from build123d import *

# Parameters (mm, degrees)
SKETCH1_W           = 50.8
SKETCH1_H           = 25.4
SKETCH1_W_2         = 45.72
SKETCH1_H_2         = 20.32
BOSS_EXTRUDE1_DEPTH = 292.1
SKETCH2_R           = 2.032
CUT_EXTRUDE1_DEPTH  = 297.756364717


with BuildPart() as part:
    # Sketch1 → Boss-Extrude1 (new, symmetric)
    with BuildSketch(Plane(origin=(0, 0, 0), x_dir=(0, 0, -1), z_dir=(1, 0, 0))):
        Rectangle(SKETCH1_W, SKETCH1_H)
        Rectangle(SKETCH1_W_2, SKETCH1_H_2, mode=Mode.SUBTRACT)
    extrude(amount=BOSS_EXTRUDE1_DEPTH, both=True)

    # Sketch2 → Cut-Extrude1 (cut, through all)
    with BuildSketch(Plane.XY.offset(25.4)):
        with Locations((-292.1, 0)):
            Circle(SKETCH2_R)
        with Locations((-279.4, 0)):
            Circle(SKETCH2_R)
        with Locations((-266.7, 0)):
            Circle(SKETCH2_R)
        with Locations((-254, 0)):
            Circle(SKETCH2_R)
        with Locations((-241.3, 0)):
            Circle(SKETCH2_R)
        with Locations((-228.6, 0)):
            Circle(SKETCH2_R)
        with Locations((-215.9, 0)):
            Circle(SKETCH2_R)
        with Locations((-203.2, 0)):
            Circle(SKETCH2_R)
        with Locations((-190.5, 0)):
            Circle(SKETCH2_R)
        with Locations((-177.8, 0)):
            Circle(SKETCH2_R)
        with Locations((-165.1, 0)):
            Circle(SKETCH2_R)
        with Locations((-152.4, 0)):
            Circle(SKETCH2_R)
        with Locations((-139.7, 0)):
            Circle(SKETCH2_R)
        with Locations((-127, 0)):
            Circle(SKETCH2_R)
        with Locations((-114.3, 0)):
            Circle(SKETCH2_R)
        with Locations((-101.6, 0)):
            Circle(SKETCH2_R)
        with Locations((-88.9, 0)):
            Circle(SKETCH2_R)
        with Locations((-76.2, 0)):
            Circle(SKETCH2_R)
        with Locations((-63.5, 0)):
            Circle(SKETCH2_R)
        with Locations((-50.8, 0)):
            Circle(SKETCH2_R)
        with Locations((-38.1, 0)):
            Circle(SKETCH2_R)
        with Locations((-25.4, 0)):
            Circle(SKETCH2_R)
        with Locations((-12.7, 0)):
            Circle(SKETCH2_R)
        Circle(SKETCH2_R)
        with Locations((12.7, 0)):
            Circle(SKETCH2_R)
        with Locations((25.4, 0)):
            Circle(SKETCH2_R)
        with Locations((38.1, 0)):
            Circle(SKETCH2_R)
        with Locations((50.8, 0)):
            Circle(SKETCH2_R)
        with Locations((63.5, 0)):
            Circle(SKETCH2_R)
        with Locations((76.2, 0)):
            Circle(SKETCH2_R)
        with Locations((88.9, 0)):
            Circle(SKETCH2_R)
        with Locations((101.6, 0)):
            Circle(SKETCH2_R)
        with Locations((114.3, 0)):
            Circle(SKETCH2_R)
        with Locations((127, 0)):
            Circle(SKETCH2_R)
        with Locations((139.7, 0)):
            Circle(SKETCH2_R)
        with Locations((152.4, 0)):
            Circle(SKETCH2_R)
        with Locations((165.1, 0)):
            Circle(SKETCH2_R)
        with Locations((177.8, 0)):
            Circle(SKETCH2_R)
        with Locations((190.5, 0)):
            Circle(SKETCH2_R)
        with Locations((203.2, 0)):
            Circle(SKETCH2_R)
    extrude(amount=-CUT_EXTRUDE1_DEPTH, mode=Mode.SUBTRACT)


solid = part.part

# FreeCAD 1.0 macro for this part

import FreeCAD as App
import Part
import Sketcher
Q = App.Units.Quantity


def add_polygon(sketch, points):
    """Adds a closed chain of lines whose ends are joined by coincident constraints."""
    first, n = sketch.GeometryCount, len(points)
    for a, b in zip(points, points[1:] + points[:1]):
        sketch.addGeometry(Part.LineSegment(App.Vector(*a, 0), App.Vector(*b, 0)), False)
    for i in range(n):
        sketch.addConstraint(Sketcher.Constraint("Coincident", first + i, 2, first + (i + 1) % n, 1))

doc = App.newDocument("Part")
body = doc.addObject("PartDesign::Body", "Body")

# Sketch on YZ plane
sketch1 = body.newObject("Sketcher::SketchObject", "Sketch")
sketch1.AttachmentSupport = (doc.getObject("YZ_Plane"), [""])
sketch1.MapMode = "FlatFace"
add_polygon(sketch1, [(12.7, 25.4), (-12.7, 25.4), (-12.7, -25.4), (12.7, -25.4)])  # lines 0-3
add_polygon(sketch1, [(-10.16, -22.86), (-10.16, 22.86), (10.16, 22.86), (10.16, -22.86)])  # lines 4-7
sketch1.addConstraint(Sketcher.Constraint("Horizontal", 0))
sketch1.addConstraint(Sketcher.Constraint("Vertical", 1))
sketch1.addConstraint(Sketcher.Constraint("Horizontal", 2))
sketch1.addConstraint(Sketcher.Constraint("Vertical", 3))
sketch1.addConstraint(Sketcher.Constraint("Vertical", 4))
sketch1.addConstraint(Sketcher.Constraint("Horizontal", 5))
sketch1.addConstraint(Sketcher.Constraint("Vertical", 6))
sketch1.addConstraint(Sketcher.Constraint("Horizontal", 7))
sketch1.addConstraint(Sketcher.Constraint("Symmetric", 0, 2, 2, 2, -1, 1))
sketch1.addConstraint(Sketcher.Constraint("Symmetric", 4, 2, 6, 2, -1, 1))
sketch1.addConstraint(Sketcher.Constraint("DistanceX", 0, 2, 0, 1, Q("1 in")))
sketch1.addConstraint(Sketcher.Constraint("DistanceY", 1, 2, 1, 1, Q("2 in")))
sketch1.addConstraint(Sketcher.Constraint("DistanceX", 5, 1, 5, 2, Q("0.8 in")))
sketch1.addConstraint(Sketcher.Constraint("DistanceY", 4, 1, 4, 2, Q("1.8 in")))
pad1 = body.newObject("PartDesign::Pad", "Pad")
pad1.Profile = sketch1
pad1.Length = Q("23 in")
pad1.Midplane = True

# Sketch on XY plane
sketch2 = body.newObject("Sketcher::SketchObject", "Sketch001")
sketch2.AttachmentSupport = (doc.getObject("XY_Plane"), [""])
sketch2.MapMode = "FlatFace"
sketch2.AttachmentOffset = App.Placement(App.Vector(0, 0, 1 * 25.4), App.Rotation())
sketch2.addGeometry(Part.Circle(App.Vector(-292.1, 0, 0), App.Vector(0, 0, 1), 2.032), False)
sketch2.addGeometry(Part.Circle(App.Vector(-279.4, 0, 0), App.Vector(0, 0, 1), 2.032), False)
sketch2.addGeometry(Part.Circle(App.Vector(-266.7, 0, 0), App.Vector(0, 0, 1), 2.032), False)
sketch2.addGeometry(Part.Circle(App.Vector(-254, 0, 0), App.Vector(0, 0, 1), 2.032), False)
sketch2.addGeometry(Part.Circle(App.Vector(-241.3, 0, 0), App.Vector(0, 0, 1), 2.032), False)
sketch2.addGeometry(Part.Circle(App.Vector(-228.6, 0, 0), App.Vector(0, 0, 1), 2.032), False)
sketch2.addGeometry(Part.Circle(App.Vector(-215.9, 0, 0), App.Vector(0, 0, 1), 2.032), False)
sketch2.addGeometry(Part.Circle(App.Vector(-203.2, 0, 0), App.Vector(0, 0, 1), 2.032), False)
sketch2.addGeometry(Part.Circle(App.Vector(-190.5, 0, 0), App.Vector(0, 0, 1), 2.032), False)
sketch2.addGeometry(Part.Circle(App.Vector(-177.8, 0, 0), App.Vector(0, 0, 1), 2.032), False)
sketch2.addGeometry(Part.Circle(App.Vector(-165.1, 0, 0), App.Vector(0, 0, 1), 2.032), False)
sketch2.addGeometry(Part.Circle(App.Vector(-152.4, 0, 0), App.Vector(0, 0, 1), 2.032), False)
sketch2.addGeometry(Part.Circle(App.Vector(-139.7, 0, 0), App.Vector(0, 0, 1), 2.032), False)
sketch2.addGeometry(Part.Circle(App.Vector(-127, 0, 0), App.Vector(0, 0, 1), 2.032), False)
sketch2.addGeometry(Part.Circle(App.Vector(-114.3, 0, 0), App.Vector(0, 0, 1), 2.032), False)
sketch2.addGeometry(Part.Circle(App.Vector(-101.6, 0, 0), App.Vector(0, 0, 1), 2.032), False)
sketch2.addGeometry(Part.Circle(App.Vector(-88.9, 0, 0), App.Vector(0, 0, 1), 2.032), False)
sketch2.addGeometry(Part.Circle(App.Vector(-76.2, 0, 0), App.Vector(0, 0, 1), 2.032), False)
sketch2.addGeometry(Part.Circle(App.Vector(-63.5, 0, 0), App.Vector(0, 0, 1), 2.032), False)
sketch2.addGeometry(Part.Circle(App.Vector(-50.8, 0, 0), App.Vector(0, 0, 1), 2.032), False)
sketch2.addGeometry(Part.Circle(App.Vector(-38.1, 0, 0), App.Vector(0, 0, 1), 2.032), False)
sketch2.addGeometry(Part.Circle(App.Vector(-25.4, 0, 0), App.Vector(0, 0, 1), 2.032), False)
sketch2.addGeometry(Part.Circle(App.Vector(-12.7, 0, 0), App.Vector(0, 0, 1), 2.032), False)
sketch2.addGeometry(Part.Circle(App.Vector(0, 0, 0), App.Vector(0, 0, 1), 2.032), False)
sketch2.addGeometry(Part.Circle(App.Vector(12.7, 0, 0), App.Vector(0, 0, 1), 2.032), False)
sketch2.addGeometry(Part.Circle(App.Vector(25.4, 0, 0), App.Vector(0, 0, 1), 2.032), False)
sketch2.addGeometry(Part.Circle(App.Vector(38.1, 0, 0), App.Vector(0, 0, 1), 2.032), False)
sketch2.addGeometry(Part.Circle(App.Vector(50.8, 0, 0), App.Vector(0, 0, 1), 2.032), False)
sketch2.addGeometry(Part.Circle(App.Vector(63.5, 0, 0), App.Vector(0, 0, 1), 2.032), False)
sketch2.addGeometry(Part.Circle(App.Vector(76.2, 0, 0), App.Vector(0, 0, 1), 2.032), False)
sketch2.addGeometry(Part.Circle(App.Vector(88.9, 0, 0), App.Vector(0, 0, 1), 2.032), False)
sketch2.addGeometry(Part.Circle(App.Vector(101.6, 0, 0), App.Vector(0, 0, 1), 2.032), False)
sketch2.addGeometry(Part.Circle(App.Vector(114.3, 0, 0), App.Vector(0, 0, 1), 2.032), False)
sketch2.addGeometry(Part.Circle(App.Vector(127, 0, 0), App.Vector(0, 0, 1), 2.032), False)
sketch2.addGeometry(Part.Circle(App.Vector(139.7, 0, 0), App.Vector(0, 0, 1), 2.032), False)
sketch2.addGeometry(Part.Circle(App.Vector(152.4, 0, 0), App.Vector(0, 0, 1), 2.032), False)
sketch2.addGeometry(Part.Circle(App.Vector(165.1, 0, 0), App.Vector(0, 0, 1), 2.032), False)
sketch2.addGeometry(Part.Circle(App.Vector(177.8, 0, 0), App.Vector(0, 0, 1), 2.032), False)
sketch2.addGeometry(Part.Circle(App.Vector(190.5, 0, 0), App.Vector(0, 0, 1), 2.032), False)
sketch2.addGeometry(Part.Circle(App.Vector(203.2, 0, 0), App.Vector(0, 0, 1), 2.032), False)
sketch2.addConstraint(Sketcher.Constraint("Coincident", 23, 3, -1, 1))
sketch2.addConstraint(Sketcher.Constraint("Equal", 0, 1))
sketch2.addConstraint(Sketcher.Constraint("Equal", 1, 2))
sketch2.addConstraint(Sketcher.Constraint("Equal", 2, 3))
sketch2.addConstraint(Sketcher.Constraint("Equal", 3, 4))
sketch2.addConstraint(Sketcher.Constraint("Equal", 4, 5))
sketch2.addConstraint(Sketcher.Constraint("Equal", 5, 6))
sketch2.addConstraint(Sketcher.Constraint("Equal", 6, 7))
sketch2.addConstraint(Sketcher.Constraint("Equal", 7, 8))
sketch2.addConstraint(Sketcher.Constraint("Equal", 8, 9))
sketch2.addConstraint(Sketcher.Constraint("Equal", 9, 10))
sketch2.addConstraint(Sketcher.Constraint("Equal", 10, 11))
sketch2.addConstraint(Sketcher.Constraint("Equal", 11, 12))
sketch2.addConstraint(Sketcher.Constraint("Equal", 12, 13))
sketch2.addConstraint(Sketcher.Constraint("Equal", 13, 14))
sketch2.addConstraint(Sketcher.Constraint("Equal", 14, 15))
sketch2.addConstraint(Sketcher.Constraint("Equal", 15, 16))
sketch2.addConstraint(Sketcher.Constraint("Equal", 16, 17))
sketch2.addConstraint(Sketcher.Constraint("Equal", 17, 18))
sketch2.addConstraint(Sketcher.Constraint("Equal", 18, 19))
sketch2.addConstraint(Sketcher.Constraint("Equal", 19, 20))
sketch2.addConstraint(Sketcher.Constraint("Equal", 20, 21))
sketch2.addConstraint(Sketcher.Constraint("Equal", 21, 22))
sketch2.addConstraint(Sketcher.Constraint("Equal", 22, 23))
sketch2.addConstraint(Sketcher.Constraint("Equal", 23, 24))
sketch2.addConstraint(Sketcher.Constraint("Equal", 24, 25))
sketch2.addConstraint(Sketcher.Constraint("Equal", 25, 26))
sketch2.addConstraint(Sketcher.Constraint("Equal", 26, 27))
sketch2.addConstraint(Sketcher.Constraint("Equal", 27, 28))
sketch2.addConstraint(Sketcher.Constraint("Equal", 28, 29))
sketch2.addConstraint(Sketcher.Constraint("Equal", 29, 30))
sketch2.addConstraint(Sketcher.Constraint("Equal", 30, 31))
sketch2.addConstraint(Sketcher.Constraint("Equal", 31, 32))
sketch2.addConstraint(Sketcher.Constraint("Equal", 32, 33))
sketch2.addConstraint(Sketcher.Constraint("Equal", 33, 34))
sketch2.addConstraint(Sketcher.Constraint("Equal", 34, 35))
sketch2.addConstraint(Sketcher.Constraint("Equal", 35, 36))
sketch2.addConstraint(Sketcher.Constraint("Equal", 36, 37))
sketch2.addConstraint(Sketcher.Constraint("Equal", 37, 38))
sketch2.addConstraint(Sketcher.Constraint("Equal", 38, 39))
sketch2.addConstraint(Sketcher.Constraint("Symmetric", 22, 3, 24, 3, -1, 1))
sketch2.addConstraint(Sketcher.Constraint("Symmetric", 21, 3, 25, 3, -1, 1))
sketch2.addConstraint(Sketcher.Constraint("Symmetric", 20, 3, 26, 3, -1, 1))
sketch2.addConstraint(Sketcher.Constraint("Symmetric", 19, 3, 27, 3, -1, 1))
sketch2.addConstraint(Sketcher.Constraint("Symmetric", 18, 3, 28, 3, -1, 1))
sketch2.addConstraint(Sketcher.Constraint("Symmetric", 17, 3, 29, 3, -1, 1))
sketch2.addConstraint(Sketcher.Constraint("Symmetric", 16, 3, 30, 3, -1, 1))
sketch2.addConstraint(Sketcher.Constraint("Symmetric", 15, 3, 31, 3, -1, 1))
sketch2.addConstraint(Sketcher.Constraint("Symmetric", 14, 3, 32, 3, -1, 1))
sketch2.addConstraint(Sketcher.Constraint("Symmetric", 13, 3, 33, 3, -1, 1))
sketch2.addConstraint(Sketcher.Constraint("Symmetric", 12, 3, 34, 3, -1, 1))
sketch2.addConstraint(Sketcher.Constraint("Symmetric", 11, 3, 35, 3, -1, 1))
sketch2.addConstraint(Sketcher.Constraint("Symmetric", 10, 3, 36, 3, -1, 1))
sketch2.addConstraint(Sketcher.Constraint("Symmetric", 9, 3, 37, 3, -1, 1))
sketch2.addConstraint(Sketcher.Constraint("Symmetric", 8, 3, 38, 3, -1, 1))
sketch2.addConstraint(Sketcher.Constraint("Symmetric", 7, 3, 39, 3, -1, 1))
sketch2.addConstraint(Sketcher.Constraint("PointOnObject", 0, 3, -1))
sketch2.addConstraint(Sketcher.Constraint("PointOnObject", 1, 3, -1))
sketch2.addConstraint(Sketcher.Constraint("PointOnObject", 2, 3, -1))
sketch2.addConstraint(Sketcher.Constraint("PointOnObject", 3, 3, -1))
sketch2.addConstraint(Sketcher.Constraint("PointOnObject", 4, 3, -1))
sketch2.addConstraint(Sketcher.Constraint("PointOnObject", 5, 3, -1))
sketch2.addConstraint(Sketcher.Constraint("PointOnObject", 6, 3, -1))
sketch2.addConstraint(Sketcher.Constraint("PointOnObject", 7, 3, -1))
sketch2.addConstraint(Sketcher.Constraint("PointOnObject", 8, 3, -1))
sketch2.addConstraint(Sketcher.Constraint("PointOnObject", 9, 3, -1))
sketch2.addConstraint(Sketcher.Constraint("PointOnObject", 10, 3, -1))
sketch2.addConstraint(Sketcher.Constraint("PointOnObject", 11, 3, -1))
sketch2.addConstraint(Sketcher.Constraint("PointOnObject", 12, 3, -1))
sketch2.addConstraint(Sketcher.Constraint("PointOnObject", 13, 3, -1))
sketch2.addConstraint(Sketcher.Constraint("PointOnObject", 14, 3, -1))
sketch2.addConstraint(Sketcher.Constraint("PointOnObject", 15, 3, -1))
sketch2.addConstraint(Sketcher.Constraint("PointOnObject", 16, 3, -1))
sketch2.addConstraint(Sketcher.Constraint("PointOnObject", 17, 3, -1))
sketch2.addConstraint(Sketcher.Constraint("PointOnObject", 18, 3, -1))
sketch2.addConstraint(Sketcher.Constraint("PointOnObject", 19, 3, -1))
sketch2.addConstraint(Sketcher.Constraint("PointOnObject", 20, 3, -1))
sketch2.addConstraint(Sketcher.Constraint("PointOnObject", 21, 3, -1))
sketch2.addConstraint(Sketcher.Constraint("PointOnObject", 22, 3, -1))
sketch2.addConstraint(Sketcher.Constraint("Diameter", 0, Q("0.16 in")))
sketch2.addConstraint(Sketcher.Constraint("DistanceX", 1, 3, -1, 1, Q("11 in")))
sketch2.addConstraint(Sketcher.Constraint("DistanceX", 3, 3, -1, 1, Q("10 in")))
sketch2.addConstraint(Sketcher.Constraint("DistanceX", 5, 3, -1, 1, Q("9 in")))
sketch2.addConstraint(Sketcher.Constraint("DistanceX", 7, 3, -1, 1, Q("8 in")))
sketch2.addConstraint(Sketcher.Constraint("DistanceX", 9, 3, -1, 1, Q("7 in")))
sketch2.addConstraint(Sketcher.Constraint("DistanceX", 11, 3, -1, 1, Q("6 in")))
sketch2.addConstraint(Sketcher.Constraint("DistanceX", 13, 3, -1, 1, Q("5 in")))
sketch2.addConstraint(Sketcher.Constraint("DistanceX", 15, 3, -1, 1, Q("4 in")))
sketch2.addConstraint(Sketcher.Constraint("DistanceX", 17, 3, -1, 1, Q("3 in")))
sketch2.addConstraint(Sketcher.Constraint("DistanceX", 19, 3, -1, 1, Q("2 in")))
sketch2.addConstraint(Sketcher.Constraint("DistanceX", 21, 3, -1, 1, Q("1 in")))
sketch2.addConstraint(Sketcher.Constraint("DistanceX", 0, 3, 2, 3, Q("1 in")))
sketch2.addConstraint(Sketcher.Constraint("DistanceX", 2, 3, 4, 3, Q("1 in")))
sketch2.addConstraint(Sketcher.Constraint("DistanceX", 4, 3, 6, 3, Q("1 in")))
sketch2.addConstraint(Sketcher.Constraint("DistanceX", 6, 3, 8, 3, Q("1 in")))
sketch2.addConstraint(Sketcher.Constraint("DistanceX", 8, 3, 10, 3, Q("1 in")))
sketch2.addConstraint(Sketcher.Constraint("DistanceX", 10, 3, 12, 3, Q("1 in")))
sketch2.addConstraint(Sketcher.Constraint("DistanceX", 12, 3, 14, 3, Q("1 in")))
sketch2.addConstraint(Sketcher.Constraint("DistanceX", 14, 3, 16, 3, Q("1 in")))
sketch2.addConstraint(Sketcher.Constraint("DistanceX", 16, 3, 18, 3, Q("1 in")))
sketch2.addConstraint(Sketcher.Constraint("DistanceX", 18, 3, 20, 3, Q("1 in")))
sketch2.addConstraint(Sketcher.Constraint("DistanceX", 20, 3, 22, 3, Q("1 in")))
sketch2.addConstraint(Sketcher.Constraint("DistanceX", 22, 3, 24, 3, Q("1 in")))
pocket1 = body.newObject("PartDesign::Pocket", "Pocket")
pocket1.Profile = sketch2
pocket1.Type = "ThroughAll"

doc.recompute()
